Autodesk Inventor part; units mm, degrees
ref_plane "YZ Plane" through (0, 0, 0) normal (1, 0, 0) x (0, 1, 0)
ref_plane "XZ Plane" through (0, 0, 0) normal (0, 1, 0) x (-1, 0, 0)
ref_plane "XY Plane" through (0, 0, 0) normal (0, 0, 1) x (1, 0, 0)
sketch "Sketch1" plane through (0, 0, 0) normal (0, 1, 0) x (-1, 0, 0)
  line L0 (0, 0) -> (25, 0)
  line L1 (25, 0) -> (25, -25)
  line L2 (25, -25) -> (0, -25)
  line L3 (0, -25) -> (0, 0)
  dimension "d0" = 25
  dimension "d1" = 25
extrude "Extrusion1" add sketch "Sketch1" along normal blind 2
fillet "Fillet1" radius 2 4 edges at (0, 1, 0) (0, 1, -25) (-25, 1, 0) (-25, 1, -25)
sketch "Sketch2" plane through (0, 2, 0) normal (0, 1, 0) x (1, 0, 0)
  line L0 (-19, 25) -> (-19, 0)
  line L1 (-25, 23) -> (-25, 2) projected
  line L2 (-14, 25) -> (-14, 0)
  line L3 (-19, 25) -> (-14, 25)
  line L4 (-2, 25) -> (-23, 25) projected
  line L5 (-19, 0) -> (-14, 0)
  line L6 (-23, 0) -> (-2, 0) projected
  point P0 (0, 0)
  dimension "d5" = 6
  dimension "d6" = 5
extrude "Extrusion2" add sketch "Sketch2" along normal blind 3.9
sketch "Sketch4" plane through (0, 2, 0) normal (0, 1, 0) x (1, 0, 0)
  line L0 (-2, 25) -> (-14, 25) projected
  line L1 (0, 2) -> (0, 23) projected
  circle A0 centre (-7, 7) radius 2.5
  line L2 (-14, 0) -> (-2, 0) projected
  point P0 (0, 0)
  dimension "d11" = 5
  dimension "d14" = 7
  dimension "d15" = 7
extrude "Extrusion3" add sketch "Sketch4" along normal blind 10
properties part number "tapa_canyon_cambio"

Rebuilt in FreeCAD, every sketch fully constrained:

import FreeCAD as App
import Part
import Sketcher


def edges_at(feature, points):
    """Names of the edges that pass closest to the given points."""
    edges = feature.Shape.Edges
    near = lambda p: min(range(len(edges)), key=lambda i: edges[i].distToShape(Part.Vertex(*p))[0])
    return sorted({f"Edge{near(p) + 1}" for p in points})

doc = App.newDocument("Part")
body = doc.addObject("PartDesign::Body", "Body")

sketch1 = doc.addObject("Sketcher::SketchObject", "Sketch")
body.addObject(sketch1)
sketch1.AttachmentSupport = (doc.XZ_Plane, [""])
sketch1.MapMode = "FlatFace"
sketch1.addGeometry([
    Part.LineSegment(App.Vector(-25, 0, 0), App.Vector(0, 0, 0)),
    Part.LineSegment(App.Vector(0, 0, 0), App.Vector(0, -25, 0)),
    Part.LineSegment(App.Vector(0, -25, 0), App.Vector(-25, -25, 0)),
    Part.LineSegment(App.Vector(-25, -25, 0), App.Vector(-25, 0, 0)),
], False)
sketch1.addConstraint([
    Sketcher.Constraint("Coincident", 0, 2, 1, 1),
    Sketcher.Constraint("Coincident", 1, 2, 2, 1),
    Sketcher.Constraint("Coincident", 2, 2, 3, 1),
    Sketcher.Constraint("Coincident", 3, 2, 0, 1),
    Sketcher.Constraint("Horizontal", 0),
    Sketcher.Constraint("Vertical", 1),
    Sketcher.Constraint("Horizontal", 2),
    Sketcher.Constraint("Vertical", 3),
    Sketcher.Constraint("Coincident", 0, 2, -1, 1),
    Sketcher.Constraint("Equal", 2, 1),
    Sketcher.Constraint("DistanceX", 0, 1, 0, 2, 25.0),
])
pad1 = doc.addObject("PartDesign::Pad", "Pad")
body.addObject(pad1)
pad1.Profile = sketch1
pad1.Length = 2
pad1.Reversed = True
doc.recompute()

fillet = doc.addObject("PartDesign::Fillet", "Fillet")
body.addObject(fillet)
fillet.Base = (pad1, edges_at(pad1, [
    (0, 1, 0),
    (0, 1, -25),
    (-25, 1, 0),
    (-25, 1, -25),
]))
fillet.Radius = 2

sketch2 = doc.addObject("Sketcher::SketchObject", "Sketch001")
body.addObject(sketch2)
sketch2.AttachmentSupport = (doc.XZ_Plane, [""])
sketch2.MapMode = "FlatFace"
sketch2.AttachmentOffset = App.Placement(App.Vector(0, 0, -2), App.Rotation())
sketch2.addGeometry([
    Part.LineSegment(App.Vector(-14, -25, 0), App.Vector(-19, -25, 0)),
    Part.LineSegment(App.Vector(-19, -25, 0), App.Vector(-19, 0, 0)),
    Part.LineSegment(App.Vector(-19, 0, 0), App.Vector(-14, 0, 0)),
    Part.LineSegment(App.Vector(-14, 0, 0), App.Vector(-14, -25, 0)),
], False)
sketch2.addConstraint([
    Sketcher.Constraint("Coincident", 0, 2, 1, 1),
    Sketcher.Constraint("Coincident", 1, 2, 2, 1),
    Sketcher.Constraint("Coincident", 2, 2, 3, 1),
    Sketcher.Constraint("Coincident", 3, 2, 0, 1),
    Sketcher.Constraint("Horizontal", 0),
    Sketcher.Constraint("Vertical", 1),
    Sketcher.Constraint("Horizontal", 2),
    Sketcher.Constraint("Vertical", 3),
    Sketcher.Constraint("PointOnObject", 1, 2, -1),
    Sketcher.Constraint("DistanceX", 0, 2, 0, 1, 5.0),
    Sketcher.Constraint("DistanceY", 1, 1, 1, 2, 25.0),
    Sketcher.Constraint("DistanceX", 0, 2, -1, 1, 19.0),
])
pad2 = doc.addObject("PartDesign::Pad", "Pad001")
body.addObject(pad2)
pad2.Profile = sketch2
pad2.Length = 3.9
pad2.Reversed = True

sketch3 = doc.addObject("Sketcher::SketchObject", "Sketch002")
body.addObject(sketch3)
sketch3.AttachmentSupport = (doc.XZ_Plane, [""])
sketch3.MapMode = "FlatFace"
sketch3.AttachmentOffset = App.Placement(App.Vector(0, 0, -2), App.Rotation())
sketch3.addGeometry(Part.Circle(App.Vector(-7, -7, 0), App.Vector(0, 0, 1), 2.5), False)
sketch3.addConstraint([
    Sketcher.Constraint("Diameter", 0, 5.0),
    Sketcher.Constraint("DistanceX", 0, 3, -1, 1, 7.0),
    Sketcher.Constraint("DistanceY", 0, 3, -1, 1, 7.0),
])
pad3 = doc.addObject("PartDesign::Pad", "Pad002")
body.addObject(pad3)
pad3.Profile = sketch3
pad3.Length = 10
pad3.Reversed = True

doc.recompute()
